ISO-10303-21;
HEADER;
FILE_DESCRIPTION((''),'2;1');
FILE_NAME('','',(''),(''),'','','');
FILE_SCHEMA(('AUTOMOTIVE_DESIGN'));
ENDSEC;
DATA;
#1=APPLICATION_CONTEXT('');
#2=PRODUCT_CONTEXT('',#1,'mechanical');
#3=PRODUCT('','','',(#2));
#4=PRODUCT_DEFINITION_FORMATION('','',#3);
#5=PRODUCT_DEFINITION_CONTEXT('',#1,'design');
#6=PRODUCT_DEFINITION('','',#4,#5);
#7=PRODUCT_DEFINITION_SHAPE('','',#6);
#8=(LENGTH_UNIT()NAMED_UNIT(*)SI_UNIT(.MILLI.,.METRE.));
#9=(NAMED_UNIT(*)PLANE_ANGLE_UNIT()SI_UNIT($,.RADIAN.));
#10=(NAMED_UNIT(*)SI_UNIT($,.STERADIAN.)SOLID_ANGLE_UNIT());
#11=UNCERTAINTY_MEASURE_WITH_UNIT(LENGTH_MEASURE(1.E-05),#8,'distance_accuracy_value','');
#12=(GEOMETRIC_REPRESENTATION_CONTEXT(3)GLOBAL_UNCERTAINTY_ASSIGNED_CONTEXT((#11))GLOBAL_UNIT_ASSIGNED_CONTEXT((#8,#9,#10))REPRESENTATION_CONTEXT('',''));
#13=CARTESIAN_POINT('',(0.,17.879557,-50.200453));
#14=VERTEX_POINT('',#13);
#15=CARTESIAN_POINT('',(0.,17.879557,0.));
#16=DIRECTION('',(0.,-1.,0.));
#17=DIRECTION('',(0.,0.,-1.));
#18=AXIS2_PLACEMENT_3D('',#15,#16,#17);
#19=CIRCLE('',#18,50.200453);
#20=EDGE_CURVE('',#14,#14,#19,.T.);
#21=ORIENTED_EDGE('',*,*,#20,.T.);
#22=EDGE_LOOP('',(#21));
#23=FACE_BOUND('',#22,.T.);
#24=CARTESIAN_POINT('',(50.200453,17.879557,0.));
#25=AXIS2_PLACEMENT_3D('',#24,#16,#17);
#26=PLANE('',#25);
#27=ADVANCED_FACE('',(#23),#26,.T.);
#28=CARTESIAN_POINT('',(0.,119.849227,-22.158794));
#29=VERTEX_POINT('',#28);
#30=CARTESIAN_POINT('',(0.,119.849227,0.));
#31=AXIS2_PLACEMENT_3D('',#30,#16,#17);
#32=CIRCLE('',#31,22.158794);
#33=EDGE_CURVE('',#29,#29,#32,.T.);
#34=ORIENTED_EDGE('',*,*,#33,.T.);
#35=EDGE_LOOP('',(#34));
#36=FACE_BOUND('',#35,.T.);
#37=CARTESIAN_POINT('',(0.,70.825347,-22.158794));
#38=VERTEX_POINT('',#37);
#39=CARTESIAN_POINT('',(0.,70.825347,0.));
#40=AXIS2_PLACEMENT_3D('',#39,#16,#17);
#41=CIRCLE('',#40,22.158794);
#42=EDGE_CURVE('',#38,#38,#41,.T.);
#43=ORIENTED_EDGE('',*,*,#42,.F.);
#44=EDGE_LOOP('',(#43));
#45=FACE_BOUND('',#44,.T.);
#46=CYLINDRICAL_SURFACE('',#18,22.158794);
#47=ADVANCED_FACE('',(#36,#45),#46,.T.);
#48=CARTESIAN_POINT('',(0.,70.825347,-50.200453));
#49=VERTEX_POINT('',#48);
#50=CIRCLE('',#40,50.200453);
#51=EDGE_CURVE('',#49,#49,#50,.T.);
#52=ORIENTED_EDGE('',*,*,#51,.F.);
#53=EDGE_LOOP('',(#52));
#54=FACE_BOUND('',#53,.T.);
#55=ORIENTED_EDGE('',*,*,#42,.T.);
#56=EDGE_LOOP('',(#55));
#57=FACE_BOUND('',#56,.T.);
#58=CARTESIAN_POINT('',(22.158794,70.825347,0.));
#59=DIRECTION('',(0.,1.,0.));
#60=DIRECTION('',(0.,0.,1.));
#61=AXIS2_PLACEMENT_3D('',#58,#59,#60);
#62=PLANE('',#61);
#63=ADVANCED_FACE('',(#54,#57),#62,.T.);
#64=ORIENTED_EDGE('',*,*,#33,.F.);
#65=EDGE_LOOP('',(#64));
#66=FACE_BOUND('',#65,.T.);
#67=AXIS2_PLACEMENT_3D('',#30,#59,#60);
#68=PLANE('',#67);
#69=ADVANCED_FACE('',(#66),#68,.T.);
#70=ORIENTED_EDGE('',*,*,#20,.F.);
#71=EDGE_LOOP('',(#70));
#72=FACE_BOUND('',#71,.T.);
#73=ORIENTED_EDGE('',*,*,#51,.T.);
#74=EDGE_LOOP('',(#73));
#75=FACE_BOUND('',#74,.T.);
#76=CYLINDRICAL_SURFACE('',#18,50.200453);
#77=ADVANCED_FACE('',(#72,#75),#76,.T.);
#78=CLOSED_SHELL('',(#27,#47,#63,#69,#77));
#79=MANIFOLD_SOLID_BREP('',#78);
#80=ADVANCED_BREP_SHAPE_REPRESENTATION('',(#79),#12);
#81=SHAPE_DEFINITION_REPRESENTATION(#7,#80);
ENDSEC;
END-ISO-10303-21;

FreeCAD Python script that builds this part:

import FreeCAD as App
import Part
import Sketcher

V = App.Vector
Q = App.Units.Quantity


def add_polygon(sketch, points):
    """Adds a closed chain of lines whose ends are joined by coincident constraints."""
    first, n = sketch.GeometryCount, len(points)
    for a, b in zip(points, points[1:] + points[:1]):
        sketch.addGeometry(Part.LineSegment(App.Vector(*a, 0), App.Vector(*b, 0)), False)
    for i in range(n):
        sketch.addConstraint(Sketcher.Constraint("Coincident", first + i, 2, first + (i + 1) % n, 1))

doc = App.newDocument("Part")
body = doc.addObject("PartDesign::Body", "Body")

# Sketch on XY plane
sketch1 = body.newObject("Sketcher::SketchObject", "Sketch")
sketch1.AttachmentSupport = (doc.getObject("XY_Plane"), [""])
sketch1.MapMode = "FlatFace"
add_polygon(sketch1, [(0, 120), (0, 18), (50, 18), (50, 71), (22, 71), (22, 120)])  # lines 0-5
sketch1.addConstraint([
    Sketcher.Constraint("Vertical", 0),
    Sketcher.Constraint("Horizontal", 1),
    Sketcher.Constraint("Vertical", 2),
    Sketcher.Constraint("Horizontal", 3),
    Sketcher.Constraint("Vertical", 4),
    Sketcher.Constraint("Horizontal", 5),
    Sketcher.Constraint("PointOnObject", 0, 2, -2),
    Sketcher.Constraint("DistanceX", 3, 2, 3, 1, Q("28.041659 mm")),
    Sketcher.Constraint("DistanceY", 0, 2, 0, 1, Q("101.969671 mm")),
    Sketcher.Constraint("DistanceY", 2, 1, 2, 2, Q("52.945791 mm")),
    Sketcher.Constraint("DistanceX", 1, 1, 1, 2, Q("50.200453 mm")),
    Sketcher.Constraint("DistanceY", -1, 1, 0, 2, Q("17.879557 mm")),
])
revolution = body.newObject("PartDesign::Revolution", "Revolution")
revolution.Profile = sketch1
revolution.ReferenceAxis = (sketch1, ["V_Axis"])
revolution.Angle = 360

doc.recompute()
